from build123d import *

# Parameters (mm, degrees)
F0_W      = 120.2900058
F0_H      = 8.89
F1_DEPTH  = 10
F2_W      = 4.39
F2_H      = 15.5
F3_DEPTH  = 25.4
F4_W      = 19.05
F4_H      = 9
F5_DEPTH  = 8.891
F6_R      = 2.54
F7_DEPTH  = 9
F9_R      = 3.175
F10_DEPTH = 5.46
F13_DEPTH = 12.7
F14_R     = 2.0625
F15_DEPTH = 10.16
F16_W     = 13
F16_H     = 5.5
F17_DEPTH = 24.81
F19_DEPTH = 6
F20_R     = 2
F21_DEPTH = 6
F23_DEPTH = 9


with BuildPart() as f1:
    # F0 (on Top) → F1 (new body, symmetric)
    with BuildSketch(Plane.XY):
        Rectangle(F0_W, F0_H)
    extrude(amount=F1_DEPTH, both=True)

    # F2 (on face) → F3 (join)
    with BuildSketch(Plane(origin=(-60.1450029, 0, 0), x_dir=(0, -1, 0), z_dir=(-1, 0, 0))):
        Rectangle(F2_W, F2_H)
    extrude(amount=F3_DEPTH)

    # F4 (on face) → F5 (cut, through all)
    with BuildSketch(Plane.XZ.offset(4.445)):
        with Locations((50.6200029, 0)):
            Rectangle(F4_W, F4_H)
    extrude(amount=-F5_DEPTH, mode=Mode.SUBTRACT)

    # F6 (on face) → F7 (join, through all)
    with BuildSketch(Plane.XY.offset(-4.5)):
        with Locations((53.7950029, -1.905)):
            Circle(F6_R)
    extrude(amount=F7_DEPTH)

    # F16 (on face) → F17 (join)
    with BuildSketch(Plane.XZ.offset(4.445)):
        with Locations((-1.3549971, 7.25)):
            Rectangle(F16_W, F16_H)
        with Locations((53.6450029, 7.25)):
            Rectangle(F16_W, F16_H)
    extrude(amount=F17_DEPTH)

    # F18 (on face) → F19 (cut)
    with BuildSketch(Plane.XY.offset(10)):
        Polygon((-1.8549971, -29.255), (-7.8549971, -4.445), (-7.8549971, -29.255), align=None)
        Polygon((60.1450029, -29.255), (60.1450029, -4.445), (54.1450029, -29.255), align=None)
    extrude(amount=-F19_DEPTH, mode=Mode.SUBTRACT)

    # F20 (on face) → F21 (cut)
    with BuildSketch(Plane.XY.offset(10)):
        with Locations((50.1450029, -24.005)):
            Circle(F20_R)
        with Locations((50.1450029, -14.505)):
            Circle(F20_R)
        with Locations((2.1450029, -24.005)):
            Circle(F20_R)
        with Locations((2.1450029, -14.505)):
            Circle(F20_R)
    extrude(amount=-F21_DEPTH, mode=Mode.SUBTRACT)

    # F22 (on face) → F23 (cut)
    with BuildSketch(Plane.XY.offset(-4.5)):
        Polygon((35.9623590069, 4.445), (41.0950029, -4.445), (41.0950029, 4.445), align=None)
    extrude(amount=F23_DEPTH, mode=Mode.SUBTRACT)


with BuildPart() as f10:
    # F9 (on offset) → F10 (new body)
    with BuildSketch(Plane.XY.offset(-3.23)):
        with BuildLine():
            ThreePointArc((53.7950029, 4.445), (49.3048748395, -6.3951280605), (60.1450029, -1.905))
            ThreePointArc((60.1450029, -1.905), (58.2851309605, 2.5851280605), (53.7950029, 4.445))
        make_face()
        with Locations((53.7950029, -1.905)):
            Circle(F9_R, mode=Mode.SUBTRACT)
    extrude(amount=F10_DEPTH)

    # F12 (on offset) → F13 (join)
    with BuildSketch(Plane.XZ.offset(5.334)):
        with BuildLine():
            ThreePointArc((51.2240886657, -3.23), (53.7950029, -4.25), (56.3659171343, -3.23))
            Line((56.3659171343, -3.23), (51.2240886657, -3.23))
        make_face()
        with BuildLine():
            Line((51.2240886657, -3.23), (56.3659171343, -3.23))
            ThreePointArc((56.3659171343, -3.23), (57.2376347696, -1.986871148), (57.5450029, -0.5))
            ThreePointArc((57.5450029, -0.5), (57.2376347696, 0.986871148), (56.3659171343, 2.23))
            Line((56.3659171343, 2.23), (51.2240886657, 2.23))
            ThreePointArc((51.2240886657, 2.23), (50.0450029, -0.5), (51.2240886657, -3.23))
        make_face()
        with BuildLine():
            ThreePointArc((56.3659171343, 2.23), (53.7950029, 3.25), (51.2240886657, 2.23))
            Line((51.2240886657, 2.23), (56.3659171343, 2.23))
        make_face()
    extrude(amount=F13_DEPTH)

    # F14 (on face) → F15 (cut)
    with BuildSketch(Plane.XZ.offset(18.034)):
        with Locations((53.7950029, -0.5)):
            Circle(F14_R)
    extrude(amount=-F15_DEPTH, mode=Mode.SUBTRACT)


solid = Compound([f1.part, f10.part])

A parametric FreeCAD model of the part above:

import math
import FreeCAD as App
import Part
import Sketcher
Q = App.Units.Quantity

doc = App.newDocument("Part")
body = doc.addObject("PartDesign::Body", "Body")

sketch1 = body.newObject("Sketcher::SketchObject", "Sketch")
sketch1.AttachmentSupport = (doc.getObject("XY_Plane"), [""])
sketch1.MapMode = "FlatFace"
sketch1.addGeometry([
    Part.LineSegment(App.Vector(-60, 4, 0), App.Vector(-60, -4, 0)),
    Part.LineSegment(App.Vector(-60, -4, 0), App.Vector(60, -4, 0)),
    Part.LineSegment(App.Vector(60, -4, 0), App.Vector(60, 4, 0)),
    Part.LineSegment(App.Vector(60, 4, 0), App.Vector(-60, 4, 0)),
], False)
sketch1.addConstraint([
    Sketcher.Constraint("Coincident", 0, 2, 1, 1),
    Sketcher.Constraint("Coincident", 1, 2, 2, 1),
    Sketcher.Constraint("Coincident", 2, 2, 3, 1),
    Sketcher.Constraint("Coincident", 3, 2, 0, 1),
    Sketcher.Constraint("Vertical", 0),
    Sketcher.Constraint("Horizontal", 1),
    Sketcher.Constraint("Vertical", 2),
    Sketcher.Constraint("Horizontal", 3),
    Sketcher.Constraint("Symmetric", 0, 2, 2, 2, -1, 1),
    Sketcher.Constraint("DistanceY", 0, 2, 0, 1, 8.89),
    Sketcher.Constraint("DistanceX", 1, 1, 1, 2, 120.290006),
])
pad1 = body.newObject("PartDesign::Pad", "Pad")
pad1.Profile = sketch1
pad1.Length = 20
pad1.Midplane = True

sketch2 = body.newObject("Sketcher::SketchObject", "Sketch001")
sketch2.AttachmentSupport = (doc.getObject("YZ_Plane"), [""])
sketch2.MapMode = "FlatFace"
sketch2.AttachmentOffset = App.Placement(App.Vector(0, 0, -60.145003), App.Rotation())
sketch2.addGeometry([
    Part.LineSegment(App.Vector(2.2, 7.8, 0), App.Vector(2.2, -7.8, 0)),
    Part.LineSegment(App.Vector(2.2, -7.8, 0), App.Vector(-2.2, -7.8, 0)),
    Part.LineSegment(App.Vector(-2.2, -7.8, 0), App.Vector(-2.2, 7.8, 0)),
    Part.LineSegment(App.Vector(-2.2, 7.8, 0), App.Vector(2.2, 7.8, 0)),
], False)
sketch2.addConstraint([
    Sketcher.Constraint("Coincident", 0, 2, 1, 1),
    Sketcher.Constraint("Coincident", 1, 2, 2, 1),
    Sketcher.Constraint("Coincident", 2, 2, 3, 1),
    Sketcher.Constraint("Coincident", 3, 2, 0, 1),
    Sketcher.Constraint("Vertical", 0),
    Sketcher.Constraint("Horizontal", 1),
    Sketcher.Constraint("Vertical", 2),
    Sketcher.Constraint("Horizontal", 3),
    Sketcher.Constraint("Symmetric", 0, 2, 2, 2, -1, 1),
    Sketcher.Constraint("DistanceY", 0, 2, 0, 1, 15.5),
    Sketcher.Constraint("DistanceX", 1, 2, 1, 1, 4.39),
])
pad2 = body.newObject("PartDesign::Pad", "Pad001")
pad2.Profile = sketch2
pad2.Length = 25.4
pad2.Reversed = True

sketch3 = body.newObject("Sketcher::SketchObject", "Sketch002")
sketch3.AttachmentSupport = (doc.getObject("XZ_Plane"), [""])
sketch3.MapMode = "FlatFace"
sketch3.AttachmentOffset = App.Placement(App.Vector(0, 0, 4.445), App.Rotation())
sketch3.addGeometry([
    Part.LineSegment(App.Vector(41, 4, 0), App.Vector(41, -4, 0)),
    Part.LineSegment(App.Vector(41, -4, 0), App.Vector(60, -4, 0)),
    Part.LineSegment(App.Vector(60, -4, 0), App.Vector(60, 4, 0)),
    Part.LineSegment(App.Vector(60, 4, 0), App.Vector(41, 4, 0)),
], False)
sketch3.addConstraint([
    Sketcher.Constraint("Coincident", 0, 2, 1, 1),
    Sketcher.Constraint("Coincident", 1, 2, 2, 1),
    Sketcher.Constraint("Coincident", 2, 2, 3, 1),
    Sketcher.Constraint("Coincident", 3, 2, 0, 1),
    Sketcher.Constraint("Vertical", 0),
    Sketcher.Constraint("Horizontal", 1),
    Sketcher.Constraint("Vertical", 2),
    Sketcher.Constraint("Horizontal", 3),
    Sketcher.Constraint("DistanceY", 0, 2, 0, 1, 9.0),
    Sketcher.Constraint("DistanceX", 1, 1, 1, 2, 19.05),
    Sketcher.Constraint("DistanceY", 0, 2, -1, 1, 4.5),
    Sketcher.Constraint("DistanceX", -1, 1, 0, 2, 41.095003),
])
pocket1 = body.newObject("PartDesign::Pocket", "Pocket")
pocket1.Profile = sketch3
pocket1.Type = "ThroughAll"

sketch4 = body.newObject("Sketcher::SketchObject", "Sketch003")
sketch4.AttachmentSupport = (doc.getObject("XY_Plane"), [""])
sketch4.MapMode = "FlatFace"
sketch4.AttachmentOffset = App.Placement(App.Vector(0, 0, -4.5), App.Rotation())
sketch4.addGeometry(Part.Circle(App.Vector(53.8, -1.9, 0), App.Vector(0, 0, 1), 2.5), False)
sketch4.addConstraint([
    Sketcher.Constraint("Diameter", 0, 5.08),
    Sketcher.Constraint("DistanceY", 0, 3, -1, 1, 1.905),
    Sketcher.Constraint("DistanceX", -1, 1, 0, 3, 53.795003),
])
pad3 = body.newObject("PartDesign::Pad", "Pad002")
pad3.Profile = sketch4
pad3.Type = "UpToLast"

sketch5 = body.newObject("Sketcher::SketchObject", "Sketch004")
sketch5.AttachmentSupport = (doc.getObject("XZ_Plane"), [""])
sketch5.MapMode = "FlatFace"
sketch5.AttachmentOffset = App.Placement(App.Vector(0, 0, 4.445), App.Rotation())
sketch5.addGeometry([
    Part.LineSegment(App.Vector(-8, 10, 0), App.Vector(-8, 4, 0)),
    Part.LineSegment(App.Vector(-8, 4, 0), App.Vector(5, 4, 0)),
    Part.LineSegment(App.Vector(5, 4, 0), App.Vector(5, 10, 0)),
    Part.LineSegment(App.Vector(5, 10, 0), App.Vector(-8, 10, 0)),
    Part.LineSegment(App.Vector(47, 10, 0), App.Vector(47, 4, 0)),
    Part.LineSegment(App.Vector(47, 4, 0), App.Vector(60, 4, 0)),
    Part.LineSegment(App.Vector(60, 4, 0), App.Vector(60, 10, 0)),
    Part.LineSegment(App.Vector(60, 10, 0), App.Vector(47, 10, 0)),
], False)
sketch5.addConstraint([
    Sketcher.Constraint("Coincident", 0, 2, 1, 1),
    Sketcher.Constraint("Coincident", 1, 2, 2, 1),
    Sketcher.Constraint("Coincident", 2, 2, 3, 1),
    Sketcher.Constraint("Coincident", 3, 2, 0, 1),
    Sketcher.Constraint("Coincident", 4, 2, 5, 1),
    Sketcher.Constraint("Coincident", 5, 2, 6, 1),
    Sketcher.Constraint("Coincident", 6, 2, 7, 1),
    Sketcher.Constraint("Coincident", 7, 2, 4, 1),
    Sketcher.Constraint("Vertical", 0),
    Sketcher.Constraint("Horizontal", 1),
    Sketcher.Constraint("Vertical", 2),
    Sketcher.Constraint("Horizontal", 3),
    Sketcher.Constraint("Vertical", 4),
    Sketcher.Constraint("Horizontal", 5),
    Sketcher.Constraint("Vertical", 6),
    Sketcher.Constraint("Horizontal", 7),
    Sketcher.Constraint("Horizontal", 1, 2, 4, 2),
    Sketcher.Constraint("Horizontal", 3, 2, 6, 2),
    Sketcher.Constraint("Equal", 3, 5),
    Sketcher.Constraint("DistanceX", 1, 1, 1, 2, 13.0),
    Sketcher.Constraint("DistanceY", 0, 2, 0, 1, 5.5),
    Sketcher.Constraint("DistanceY", -1, 1, 2, 2, 10.0),
    Sketcher.Constraint("DistanceX", 1, 2, 4, 2, 42.0),
    Sketcher.Constraint("DistanceX", 0, 2, -1, 1, 7.854997),
])
pad4 = body.newObject("PartDesign::Pad", "Pad003")
pad4.Profile = sketch5
pad4.Length = 24.81

sketch6 = body.newObject("Sketcher::SketchObject", "Sketch005")
sketch6.AttachmentSupport = (doc.getObject("XY_Plane"), [""])
sketch6.MapMode = "FlatFace"
sketch6.AttachmentOffset = App.Placement(App.Vector(0, 0, 10), App.Rotation())
sketch6.addGeometry([
    Part.LineSegment(App.Vector(-2, -29, 0), App.Vector(-8, -4, 0)),
    Part.LineSegment(App.Vector(-8, -4, 0), App.Vector(-8, -29, 0)),
    Part.LineSegment(App.Vector(-8, -29, 0), App.Vector(-2, -29, 0)),
    Part.LineSegment(App.Vector(60, -29, 0), App.Vector(60, -4, 0)),
    Part.LineSegment(App.Vector(60, -4, 0), App.Vector(54, -29, 0)),
    Part.LineSegment(App.Vector(54, -29, 0), App.Vector(60, -29, 0)),
], False)
sketch6.addConstraint([
    Sketcher.Constraint("Coincident", 0, 2, 1, 1),
    Sketcher.Constraint("Coincident", 1, 2, 2, 1),
    Sketcher.Constraint("Coincident", 2, 2, 0, 1),
    Sketcher.Constraint("Coincident", 3, 2, 4, 1),
    Sketcher.Constraint("Coincident", 4, 2, 5, 1),
    Sketcher.Constraint("Coincident", 5, 2, 3, 1),
    Sketcher.Constraint("Vertical", 1),
    Sketcher.Constraint("Horizontal", 2),
    Sketcher.Constraint("Vertical", 3),
    Sketcher.Constraint("Horizontal", 5),
    Sketcher.Constraint("Horizontal", 0, 2, 3, 2),
    Sketcher.Constraint("Horizontal", 2, 2, 4, 2),
    Sketcher.Constraint("Equal", 2, 5),
    Sketcher.Constraint("DistanceX", 2, 1, 2, 2, 6.0),
    Sketcher.Constraint("DistanceX", 2, 2, 3, 2, 62.0),
    Sketcher.Constraint("DistanceY", 1, 2, 1, 1, 24.81),
    Sketcher.Constraint("DistanceY", 0, 2, -1, 1, 4.445),
    Sketcher.Constraint("DistanceX", 0, 2, -1, 1, 7.854997),
])
pocket2 = body.newObject("PartDesign::Pocket", "Pocket001")
pocket2.Profile = sketch6
pocket2.Length = 6

sketch7 = body.newObject("Sketcher::SketchObject", "Sketch006")
sketch7.AttachmentSupport = (doc.getObject("XY_Plane"), [""])
sketch7.MapMode = "FlatFace"
sketch7.AttachmentOffset = App.Placement(App.Vector(0, 0, 10), App.Rotation())
sketch7.addGeometry([
    Part.Circle(App.Vector(50.1, -24, 0), App.Vector(0, 0, 1), 2),
    Part.Circle(App.Vector(50.1, -14.5, 0), App.Vector(0, 0, 1), 2),
    Part.Circle(App.Vector(2.1, -24, 0), App.Vector(0, 0, 1), 2),
    Part.Circle(App.Vector(2.1, -14.5, 0), App.Vector(0, 0, 1), 2),
], False)
sketch7.addConstraint([
    Sketcher.Constraint("Equal", 0, 1),
    Sketcher.Constraint("Equal", 1, 2),
    Sketcher.Constraint("Equal", 2, 3),
    Sketcher.Constraint("Horizontal", 0, 3, 2, 3),
    Sketcher.Constraint("Horizontal", 1, 3, 3, 3),
    Sketcher.Constraint("Vertical", 0, 3, 1, 3),
    Sketcher.Constraint("Vertical", 2, 3, 3, 3),
    Sketcher.Constraint("Diameter", 0, 4.0),
    Sketcher.Constraint("DistanceX", 2, 3, 0, 3, 48.0),
    Sketcher.Constraint("DistanceY", 0, 3, 1, 3, 9.5),
    Sketcher.Constraint("DistanceY", 0, 3, -1, 1, 24.005),
    Sketcher.Constraint("DistanceX", -1, 1, 0, 3, 50.145003),
])
pocket3 = body.newObject("PartDesign::Pocket", "Pocket002")
pocket3.Profile = sketch7
pocket3.Length = 6

sketch8 = body.newObject("Sketcher::SketchObject", "Sketch007")
sketch8.AttachmentSupport = (doc.getObject("XY_Plane"), [""])
sketch8.MapMode = "FlatFace"
sketch8.AttachmentOffset = App.Placement(App.Vector(0, 0, -4.5), App.Rotation())
sketch8.addGeometry([
    Part.LineSegment(App.Vector(36, 4, 0), App.Vector(41, -4, 0)),
    Part.LineSegment(App.Vector(41, -4, 0), App.Vector(41, 4, 0)),
    Part.LineSegment(App.Vector(41, 4, 0), App.Vector(36, 4, 0)),
], False)
sketch8.addConstraint([
    Sketcher.Constraint("Coincident", 0, 2, 1, 1),
    Sketcher.Constraint("Coincident", 1, 2, 2, 1),
    Sketcher.Constraint("Coincident", 2, 2, 0, 1),
    Sketcher.Constraint("Vertical", 1),
    Sketcher.Constraint("Horizontal", 2),
    Sketcher.Constraint("Angle", 0, Q("-60 deg")),
    Sketcher.Constraint("DistanceY", 1, 1, 1, 2, 8.89),
    Sketcher.Constraint("DistanceY", 0, 2, -1, 1, 4.445),
    Sketcher.Constraint("DistanceX", -1, 1, 2, 2, 35.962359),
])
pocket4 = body.newObject("PartDesign::Pocket", "Pocket003")
pocket4.Profile = sketch8
pocket4.Length = 9
pocket4.Reversed = True
body2 = doc.addObject("PartDesign::Body", "Body001")

sketch9 = body2.newObject("Sketcher::SketchObject", "Sketch008")
sketch9.AttachmentSupport = (doc.getObject("XY_Plane001"), [""])
sketch9.MapMode = "FlatFace"
sketch9.AttachmentOffset = App.Placement(App.Vector(0, 0, -3.23), App.Rotation())
sketch9.addGeometry([
    Part.ArcOfCircle(Part.Circle(App.Vector(53.8, -1.9, 0), App.Vector(0, 0, 1), 6.3), math.radians(90), math.radians(360)),
    Part.ArcOfCircle(Part.Circle(App.Vector(53.8, -1.9, 0), App.Vector(0, 0, 1), 6.3), math.radians(0), math.radians(90)),
    Part.Circle(App.Vector(53.8, -1.9, 0), App.Vector(0, 0, 1), 3.2),
], False)
sketch9.addConstraint([
    Sketcher.Constraint("Tangent", 0, 1, 1, 2),
    Sketcher.Constraint("Coincident", 1, 1, 0, 2),
    Sketcher.Constraint("Coincident", 2, 3, 0, 3),
    Sketcher.Constraint("Horizontal", 2, 3, 1, 1),
    Sketcher.Constraint("Vertical", 2, 3, 0, 1),
    Sketcher.Constraint("Diameter", 2, 6.35),
    Sketcher.Constraint("Radius", 0, 6.35),
    Sketcher.Constraint("DistanceY", 0, 3, -1, 1, 1.905),
    Sketcher.Constraint("DistanceX", -1, 1, 0, 3, 53.795003),
])
pad5 = body2.newObject("PartDesign::Pad", "Pad004")
pad5.Profile = sketch9
pad5.Length = 5.46

sketch10 = body2.newObject("Sketcher::SketchObject", "Sketch009")
sketch10.AttachmentSupport = (doc.getObject("XZ_Plane001"), [""])
sketch10.MapMode = "FlatFace"
sketch10.AttachmentOffset = App.Placement(App.Vector(0, 0, 5.334), App.Rotation())
sketch10.addGeometry([
    Part.ArcOfCircle(Part.Circle(App.Vector(53.8, -0.5, 0), App.Vector(0, 0, 1), 3.8), math.radians(-133), math.radians(-47)),
    Part.ArcOfCircle(Part.Circle(App.Vector(53.8, -0.5, 0), App.Vector(0, 0, 1), 3.8), math.radians(-47), math.radians(0)),
    Part.ArcOfCircle(Part.Circle(App.Vector(53.8, -0.5, 0), App.Vector(0, 0, 1), 3.8), math.radians(0), math.radians(47)),
    Part.ArcOfCircle(Part.Circle(App.Vector(53.8, -0.5, 0), App.Vector(0, 0, 1), 3.8), math.radians(47), math.radians(133)),
    Part.ArcOfCircle(Part.Circle(App.Vector(53.8, -0.5, 0), App.Vector(0, 0, 1), 3.8), math.radians(133), math.radians(227)),
], False)
sketch10.addConstraint([
    Sketcher.Constraint("Tangent", 0, 2, 1, 1),
    Sketcher.Constraint("Tangent", 1, 2, 2, 1),
    Sketcher.Constraint("Tangent", 2, 2, 3, 1),
    Sketcher.Constraint("Tangent", 3, 2, 4, 1),
    Sketcher.Constraint("Tangent", 4, 2, 0, 1),
    Sketcher.Constraint("Coincident", 2, 3, 0, 3),
    Sketcher.Constraint("Horizontal", 4, 3, 1, 2),
    Sketcher.Constraint("Horizontal", 2, 2, 3, 2),
    Sketcher.Constraint("Horizontal", 0, 2, 4, 2),
    Sketcher.Constraint("Vertical", 0, 2, 2, 2),
    Sketcher.Constraint("Radius", 0, 3.75),
    Sketcher.Constraint("DistanceY", 0, 3, -1, 1, 0.5),
    Sketcher.Constraint("DistanceY", 0, 2, -1, 1, 3.23),
    Sketcher.Constraint("DistanceX", -1, 1, 3, 2, 51.224089),
])
pad6 = body2.newObject("PartDesign::Pad", "Pad005")
pad6.Profile = sketch10
pad6.Length = 12.7

sketch11 = body2.newObject("Sketcher::SketchObject", "Sketch010")
sketch11.AttachmentSupport = (doc.getObject("XZ_Plane001"), [""])
sketch11.MapMode = "FlatFace"
sketch11.AttachmentOffset = App.Placement(App.Vector(0, 0, 18.034), App.Rotation())
sketch11.addGeometry(Part.Circle(App.Vector(53.8, -0.5, 0), App.Vector(0, 0, 1), 2.1), False)
sketch11.addConstraint([
    Sketcher.Constraint("Diameter", 0, 4.125),
    Sketcher.Constraint("DistanceY", 0, 3, -1, 1, 0.5),
    Sketcher.Constraint("DistanceX", -1, 1, 0, 3, 53.795003),
])
pocket5 = body2.newObject("PartDesign::Pocket", "Pocket004")
pocket5.Profile = sketch11
pocket5.Length = 10.16

doc.recompute()
